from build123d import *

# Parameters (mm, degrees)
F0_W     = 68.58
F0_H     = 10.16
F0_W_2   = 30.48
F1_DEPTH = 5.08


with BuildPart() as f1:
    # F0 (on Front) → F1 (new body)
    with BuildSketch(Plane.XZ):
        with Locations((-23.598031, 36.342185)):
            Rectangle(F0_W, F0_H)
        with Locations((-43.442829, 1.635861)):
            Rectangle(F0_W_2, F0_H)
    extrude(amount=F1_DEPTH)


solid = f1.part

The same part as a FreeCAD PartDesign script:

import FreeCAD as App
import Part
import Sketcher
from FreeCAD import Vector
Q = App.Units.Quantity


def add_polygon(sketch, points):
    """Adds a closed chain of lines whose ends are joined by coincident constraints."""
    first, n = sketch.GeometryCount, len(points)
    for a, b in zip(points, points[1:] + points[:1]):
        sketch.addGeometry(Part.LineSegment(App.Vector(*a, 0), App.Vector(*b, 0)), False)
    for i in range(n):
        sketch.addConstraint(Sketcher.Constraint("Coincident", first + i, 2, first + (i + 1) % n, 1))

doc = App.newDocument("Part")
body = doc.addObject("PartDesign::Body", "Body")
body.AllowCompound = True

# Sketch on XZ plane
sketch1 = body.newObject("Sketcher::SketchObject", "Sketch")
sketch1.AttachmentSupport = (doc.getObject("XZ_Plane"), [""])
sketch1.MapMode = "FlatFace"
add_polygon(sketch1, [(-58, 41), (-58, 31), (11, 31), (11, 41)])  # lines 0-3
add_polygon(sketch1, [(-59, 7), (-59, -3), (-28, -3), (-28, 7)])  # lines 4-7
sketch1.addConstraint(Sketcher.Constraint("Vertical", 0))
sketch1.addConstraint(Sketcher.Constraint("Horizontal", 1))
sketch1.addConstraint(Sketcher.Constraint("Vertical", 2))
sketch1.addConstraint(Sketcher.Constraint("Horizontal", 3))
sketch1.addConstraint(Sketcher.Constraint("Vertical", 4))
sketch1.addConstraint(Sketcher.Constraint("Horizontal", 5))
sketch1.addConstraint(Sketcher.Constraint("Vertical", 6))
sketch1.addConstraint(Sketcher.Constraint("Horizontal", 7))
sketch1.addConstraint(Sketcher.Constraint("Equal", 2, 4))
sketch1.addConstraint(Sketcher.Constraint("DistanceX", 1, 1, 1, 2, Q("2.7 in")))
sketch1.addConstraint(Sketcher.Constraint("DistanceX", 5, 1, 5, 2, Q("1.2 in")))
sketch1.addConstraint(Sketcher.Constraint("DistanceY", 0, 2, 0, 1, Q("0.4 in")))
sketch1.addConstraint(Sketcher.Constraint("DistanceX", 4, 2, 0, 2, Q("0.794798 mm")))
sketch1.addConstraint(Sketcher.Constraint("DistanceX", 0, 2, -1, 1, Q("57.888031 mm")))
sketch1.addConstraint(Sketcher.Constraint("DistanceY", 4, 2, -1, 1, Q("3.444139 mm")))
sketch1.addConstraint(Sketcher.Constraint("DistanceY", -1, 1, 0, 2, Q("31.262185 mm")))
pad1 = body.newObject("PartDesign::Pad", "Pad")
pad1.Profile = sketch1
pad1.Length = Q("0.2 in")

doc.recompute()
